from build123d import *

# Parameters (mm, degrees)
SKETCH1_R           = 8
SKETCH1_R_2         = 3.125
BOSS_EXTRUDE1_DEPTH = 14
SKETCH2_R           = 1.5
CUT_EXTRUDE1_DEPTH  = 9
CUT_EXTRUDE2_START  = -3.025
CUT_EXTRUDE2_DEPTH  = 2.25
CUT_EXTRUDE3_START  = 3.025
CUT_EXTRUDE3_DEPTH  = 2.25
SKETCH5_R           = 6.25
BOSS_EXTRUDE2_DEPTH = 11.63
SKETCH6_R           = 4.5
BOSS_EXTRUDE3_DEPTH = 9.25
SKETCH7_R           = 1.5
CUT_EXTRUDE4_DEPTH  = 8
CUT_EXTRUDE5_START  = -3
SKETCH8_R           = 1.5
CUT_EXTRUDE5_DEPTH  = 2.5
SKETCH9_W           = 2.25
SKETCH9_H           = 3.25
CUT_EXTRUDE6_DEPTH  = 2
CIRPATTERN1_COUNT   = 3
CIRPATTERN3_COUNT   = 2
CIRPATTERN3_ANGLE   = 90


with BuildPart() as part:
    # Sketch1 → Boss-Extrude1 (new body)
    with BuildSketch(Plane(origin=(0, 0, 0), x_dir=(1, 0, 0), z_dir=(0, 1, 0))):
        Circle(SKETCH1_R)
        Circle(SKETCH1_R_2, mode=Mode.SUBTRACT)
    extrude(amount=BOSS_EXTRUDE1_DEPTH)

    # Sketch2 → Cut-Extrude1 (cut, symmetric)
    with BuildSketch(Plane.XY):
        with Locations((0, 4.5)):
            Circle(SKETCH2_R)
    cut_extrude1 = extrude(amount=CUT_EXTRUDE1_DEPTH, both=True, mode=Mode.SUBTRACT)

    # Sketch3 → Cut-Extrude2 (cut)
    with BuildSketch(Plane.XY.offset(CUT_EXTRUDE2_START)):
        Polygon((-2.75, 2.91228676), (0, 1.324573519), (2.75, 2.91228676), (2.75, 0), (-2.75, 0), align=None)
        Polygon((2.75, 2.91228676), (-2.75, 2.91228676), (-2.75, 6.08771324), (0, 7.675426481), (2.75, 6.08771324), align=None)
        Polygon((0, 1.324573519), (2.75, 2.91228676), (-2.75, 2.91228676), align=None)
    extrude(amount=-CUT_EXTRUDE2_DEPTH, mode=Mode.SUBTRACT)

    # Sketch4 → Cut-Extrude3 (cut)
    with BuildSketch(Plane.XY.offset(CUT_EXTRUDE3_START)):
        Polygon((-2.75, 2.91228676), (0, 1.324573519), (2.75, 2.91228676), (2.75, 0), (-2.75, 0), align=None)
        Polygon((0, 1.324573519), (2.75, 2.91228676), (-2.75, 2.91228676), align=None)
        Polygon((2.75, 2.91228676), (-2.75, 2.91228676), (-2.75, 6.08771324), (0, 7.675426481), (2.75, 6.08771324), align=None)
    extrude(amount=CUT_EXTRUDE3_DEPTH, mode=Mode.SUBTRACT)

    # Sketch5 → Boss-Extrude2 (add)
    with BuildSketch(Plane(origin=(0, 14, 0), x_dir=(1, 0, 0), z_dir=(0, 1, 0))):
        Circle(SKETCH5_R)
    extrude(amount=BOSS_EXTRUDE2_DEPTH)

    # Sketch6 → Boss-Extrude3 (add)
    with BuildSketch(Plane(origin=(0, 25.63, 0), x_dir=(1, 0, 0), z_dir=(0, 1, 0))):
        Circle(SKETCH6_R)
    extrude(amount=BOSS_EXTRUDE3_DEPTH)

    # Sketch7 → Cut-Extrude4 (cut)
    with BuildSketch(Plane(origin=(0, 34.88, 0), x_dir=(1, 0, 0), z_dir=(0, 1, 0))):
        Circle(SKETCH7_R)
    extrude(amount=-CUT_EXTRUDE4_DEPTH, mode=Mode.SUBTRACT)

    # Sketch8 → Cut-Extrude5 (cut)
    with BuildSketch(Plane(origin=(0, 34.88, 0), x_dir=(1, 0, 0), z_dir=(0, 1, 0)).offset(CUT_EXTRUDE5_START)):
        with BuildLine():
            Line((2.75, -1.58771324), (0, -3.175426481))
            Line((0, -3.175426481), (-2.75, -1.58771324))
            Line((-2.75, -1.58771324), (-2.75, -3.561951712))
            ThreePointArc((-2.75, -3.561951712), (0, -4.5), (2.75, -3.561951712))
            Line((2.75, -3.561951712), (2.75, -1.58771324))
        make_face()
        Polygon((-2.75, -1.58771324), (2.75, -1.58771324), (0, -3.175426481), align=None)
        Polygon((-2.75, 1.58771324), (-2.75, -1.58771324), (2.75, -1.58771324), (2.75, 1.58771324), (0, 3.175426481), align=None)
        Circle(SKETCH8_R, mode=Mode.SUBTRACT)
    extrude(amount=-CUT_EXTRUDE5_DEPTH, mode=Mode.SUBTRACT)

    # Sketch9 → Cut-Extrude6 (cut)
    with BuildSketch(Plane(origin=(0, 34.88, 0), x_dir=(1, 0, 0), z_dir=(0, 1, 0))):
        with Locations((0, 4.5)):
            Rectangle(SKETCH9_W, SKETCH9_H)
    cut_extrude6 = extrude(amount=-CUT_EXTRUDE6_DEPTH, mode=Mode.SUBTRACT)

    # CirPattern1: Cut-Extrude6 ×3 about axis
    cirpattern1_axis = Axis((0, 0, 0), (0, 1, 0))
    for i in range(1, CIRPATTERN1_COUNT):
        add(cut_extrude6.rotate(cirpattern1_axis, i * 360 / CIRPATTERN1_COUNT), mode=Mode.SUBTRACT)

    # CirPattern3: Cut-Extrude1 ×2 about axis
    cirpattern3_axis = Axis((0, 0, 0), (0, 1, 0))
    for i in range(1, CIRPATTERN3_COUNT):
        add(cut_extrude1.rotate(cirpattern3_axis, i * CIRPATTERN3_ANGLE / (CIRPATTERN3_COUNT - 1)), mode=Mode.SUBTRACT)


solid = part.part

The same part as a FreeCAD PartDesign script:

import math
import FreeCAD as App
import Part
import Sketcher

V = App.Vector
Q = App.Units.Quantity


def add_polygon(sketch, points):
    """Adds a closed chain of lines whose ends are joined by coincident constraints."""
    first, n = sketch.GeometryCount, len(points)
    for a, b in zip(points, points[1:] + points[:1]):
        sketch.addGeometry(Part.LineSegment(App.Vector(*a, 0), App.Vector(*b, 0)), False)
    for i in range(n):
        sketch.addConstraint(Sketcher.Constraint("Coincident", first + i, 2, first + (i + 1) % n, 1))

doc = App.newDocument("Part")
params = doc.addObject("Spreadsheet::Sheet", "Params")
for row, (alias, value) in enumerate([
    ("sketch1_diameter", "16 mm"),
    ("sketch1_diameter2", "6.25 mm"),
    ("pad1_length", "14 mm"),
    ("sketch2_diameter", "3 mm"),
    ("pocket1_length", "18 mm"),
    ("sketch3_width", "5.5 mm"),
    ("pocket2_length", "2.25 mm"),
    ("sketch4_width", "5.5 mm"),
    ("pocket3_length", "2.25 mm"),
    ("sketch5_diameter", "12.5 mm"),
    ("pad2_length", "11.63 mm"),
    ("sketch6_diameter", "9 mm"),
    ("pad3_length", "9.25 mm"),
    ("sketch7_diameter", "3 mm"),
    ("pocket4_length", "8 mm"),
    ("sketch8_diameter", "3 mm"),
    ("sketch8_radius", "4.5 mm"),
    ("pocket5_length", "2.5 mm"),
    ("sketch9_width", "2.25 mm"),
    ("sketch9_height", "3.25 mm"),
    ("pocket6_length", "2 mm"),
], start=1):
    params.set(f"A{row}", alias)
    params.set(f"B{row}", "=" + value)
    params.setAlias(f"B{row}", alias)

body = doc.addObject("PartDesign::Body", "Body")

# Sketch on XZ plane
sketch1 = doc.addObject("Sketcher::SketchObject", "Sketch")
body.addObject(sketch1)
sketch1.AttachmentSupport = (doc.XZ_Plane, [""])
sketch1.MapMode = "FlatFace"
sketch1.addGeometry(Part.Circle(V(0, 0, 0), V(0, 0, 1), 8), False)
sketch1.addGeometry(Part.Circle(V(0, 0, 0), V(0, 0, 1), 3.1), False)
sketch1.addConstraint(Sketcher.Constraint("Coincident", 0, 3, -1, 1))
sketch1.addConstraint(Sketcher.Constraint("Coincident", 1, 3, -1, 1))
sketch1.addConstraint(Sketcher.Constraint("Diameter", 0, Q("16 mm")))
sketch1.addConstraint(Sketcher.Constraint("Diameter", 1, Q("6.25 mm")))
sketch1.setExpression("Constraints[2]", "Params.sketch1_diameter")
sketch1.setExpression("Constraints[3]", "Params.sketch1_diameter2")
pad1 = doc.addObject("PartDesign::Pad", "Pad")
body.addObject(pad1)
pad1.Profile = sketch1
pad1.setExpression("Length", "Params.pad1_length")
pad1.Reversed = True

# Sketch on XY plane
sketch2 = doc.addObject("Sketcher::SketchObject", "Sketch001")
body.addObject(sketch2)
sketch2.AttachmentSupport = (doc.XY_Plane, [""])
sketch2.MapMode = "FlatFace"
sketch2.addGeometry(Part.Circle(V(0, 4.5, 0), V(0, 0, 1), 1.5), False)
sketch2.addConstraint(Sketcher.Constraint("PointOnObject", 0, 3, -2))
sketch2.addConstraint(Sketcher.Constraint("Diameter", 0, Q("3 mm")))
sketch2.addConstraint(Sketcher.Constraint("DistanceY", -1, 1, 0, 3, Q("4.5 mm")))
sketch2.setExpression("Constraints[1]", "Params.sketch2_diameter")
pocket1 = doc.addObject("PartDesign::Pocket", "Pocket")
body.addObject(pocket1)
pocket1.Profile = sketch2
pocket1.setExpression("Length", "Params.pocket1_length")
pocket1.Midplane = True

# Sketch on XY plane
sketch3 = doc.addObject("Sketcher::SketchObject", "Sketch002")
body.addObject(sketch3)
sketch3.AttachmentSupport = (doc.XY_Plane, [""])
sketch3.MapMode = "FlatFace"
sketch3.AttachmentOffset = App.Placement(V(0, 0, -3.025), App.Rotation())
add_polygon(sketch3, [(2.8, 0), (2.8, 6.1), (0, 7.7), (-2.8, 6.1), (-2.8, 0)])  # lines 0-4
sketch3.addConstraint(Sketcher.Constraint("Vertical", 0))
sketch3.addConstraint(Sketcher.Constraint("Vertical", 3))
sketch3.addConstraint(Sketcher.Constraint("Horizontal", 4))
sketch3.addConstraint(Sketcher.Constraint("Symmetric", 3, 2, 4, 2, -1, 1))
sketch3.addConstraint(Sketcher.Constraint("PointOnObject", 1, 2, -2))
sketch3.addConstraint(Sketcher.Constraint("Horizontal", 0, 2, 2, 2))
sketch3.addConstraint(Sketcher.Constraint("Angle", 1, Q("150 deg")))
sketch3.addConstraint(Sketcher.Constraint("DistanceX", 4, 1, 4, 2, Q("5.5 mm")))
sketch3.addConstraint(Sketcher.Constraint("DistanceY", 0, 1, 0, 2, Q("6.087713 mm")))
sketch3.setExpression("Constraints[12]", "Params.sketch3_width")
pocket2 = doc.addObject("PartDesign::Pocket", "Pocket001")
body.addObject(pocket2)
pocket2.Profile = sketch3
pocket2.setExpression("Length", "Params.pocket2_length")

# Sketch on XY plane
sketch4 = doc.addObject("Sketcher::SketchObject", "Sketch003")
body.addObject(sketch4)
sketch4.AttachmentSupport = (doc.XY_Plane, [""])
sketch4.MapMode = "FlatFace"
sketch4.AttachmentOffset = App.Placement(V(0, 0, 3.025), App.Rotation())
add_polygon(sketch4, [(2.8, 0), (2.8, 6.1), (0, 7.7), (-2.8, 6.1), (-2.8, 0)])  # lines 0-4
sketch4.addConstraint(Sketcher.Constraint("Vertical", 0))
sketch4.addConstraint(Sketcher.Constraint("Vertical", 3))
sketch4.addConstraint(Sketcher.Constraint("Horizontal", 4))
sketch4.addConstraint(Sketcher.Constraint("Symmetric", 3, 2, 4, 2, -1, 1))
sketch4.addConstraint(Sketcher.Constraint("PointOnObject", 1, 2, -2))
sketch4.addConstraint(Sketcher.Constraint("Horizontal", 0, 2, 2, 2))
sketch4.addConstraint(Sketcher.Constraint("Angle", 1, Q("150 deg")))
sketch4.addConstraint(Sketcher.Constraint("DistanceX", 4, 1, 4, 2, Q("5.5 mm")))
sketch4.addConstraint(Sketcher.Constraint("DistanceY", 0, 1, 0, 2, Q("6.087713 mm")))
sketch4.setExpression("Constraints[12]", "Params.sketch4_width")
pocket3 = doc.addObject("PartDesign::Pocket", "Pocket002")
body.addObject(pocket3)
pocket3.Profile = sketch4
pocket3.setExpression("Length", "Params.pocket3_length")
pocket3.Reversed = True

# Sketch on XZ plane
sketch5 = doc.addObject("Sketcher::SketchObject", "Sketch004")
body.addObject(sketch5)
sketch5.AttachmentSupport = (doc.XZ_Plane, [""])
sketch5.MapMode = "FlatFace"
sketch5.AttachmentOffset = App.Placement(V(0, 0, -14), App.Rotation())
sketch5.addGeometry(Part.Circle(V(0, 0, 0), V(0, 0, 1), 6), False)
sketch5.addConstraint(Sketcher.Constraint("Coincident", 0, 3, -1, 1))
sketch5.addConstraint(Sketcher.Constraint("Diameter", 0, Q("12.5 mm")))
sketch5.setExpression("Constraints[1]", "Params.sketch5_diameter")
pad2 = doc.addObject("PartDesign::Pad", "Pad001")
body.addObject(pad2)
pad2.Profile = sketch5
pad2.setExpression("Length", "Params.pad2_length")
pad2.Reversed = True

# Sketch on XZ plane
sketch6 = doc.addObject("Sketcher::SketchObject", "Sketch005")
body.addObject(sketch6)
sketch6.AttachmentSupport = (doc.XZ_Plane, [""])
sketch6.MapMode = "FlatFace"
sketch6.AttachmentOffset = App.Placement(V(0, 0, -25.63), App.Rotation())
sketch6.addGeometry(Part.Circle(V(0, 0, 0), V(0, 0, 1), 4.5), False)
sketch6.addConstraint(Sketcher.Constraint("Coincident", 0, 3, -1, 1))
sketch6.addConstraint(Sketcher.Constraint("Diameter", 0, Q("9 mm")))
sketch6.setExpression("Constraints[1]", "Params.sketch6_diameter")
pad3 = doc.addObject("PartDesign::Pad", "Pad002")
body.addObject(pad3)
pad3.Profile = sketch6
pad3.setExpression("Length", "Params.pad3_length")
pad3.Reversed = True

# Sketch on XZ plane
sketch7 = doc.addObject("Sketcher::SketchObject", "Sketch006")
body.addObject(sketch7)
sketch7.AttachmentSupport = (doc.XZ_Plane, [""])
sketch7.MapMode = "FlatFace"
sketch7.AttachmentOffset = App.Placement(V(0, 0, -34.88), App.Rotation())
sketch7.addGeometry(Part.Circle(V(0, 0, 0), V(0, 0, 1), 1.5), False)
sketch7.addConstraint(Sketcher.Constraint("Coincident", 0, 3, -1, 1))
sketch7.addConstraint(Sketcher.Constraint("Diameter", 0, Q("3 mm")))
sketch7.setExpression("Constraints[1]", "Params.sketch7_diameter")
pocket4 = doc.addObject("PartDesign::Pocket", "Pocket003")
body.addObject(pocket4)
pocket4.Profile = sketch7
pocket4.setExpression("Length", "Params.pocket4_length")
pocket4.Reversed = True

# Sketch on XZ plane
sketch8 = doc.addObject("Sketcher::SketchObject", "Sketch007")
body.addObject(sketch8)
sketch8.AttachmentSupport = (doc.XZ_Plane, [""])
sketch8.MapMode = "FlatFace"
sketch8.AttachmentOffset = App.Placement(V(0, 0, -31.88), App.Rotation())
sketch8.addGeometry(Part.ArcOfCircle(Part.Circle(V(0, 0, 0), V(0, 0, 1), 4.5), math.radians(52), math.radians(128)), False)
sketch8.addGeometry(Part.LineSegment(V(2.8, 3.6, 0), V(2.8, -1.6, 0)), False)
sketch8.addGeometry(Part.LineSegment(V(2.8, -1.6, 0), V(0, -3.2, 0)), False)
sketch8.addGeometry(Part.LineSegment(V(0, -3.2, 0), V(-2.8, -1.6, 0)), False)
sketch8.addGeometry(Part.LineSegment(V(-2.8, -1.6, 0), V(-2.8, 3.6, 0)), False)
sketch8.addGeometry(Part.Circle(V(0, 0, 0), V(0, 0, 1), 1.5), False)
sketch8.addConstraint(Sketcher.Constraint("Coincident", 0, 1, 1, 1))
sketch8.addConstraint(Sketcher.Constraint("Coincident", 1, 2, 2, 1))
sketch8.addConstraint(Sketcher.Constraint("Coincident", 2, 2, 3, 1))
sketch8.addConstraint(Sketcher.Constraint("Coincident", 3, 2, 4, 1))
sketch8.addConstraint(Sketcher.Constraint("Coincident", 4, 2, 0, 2))
sketch8.addConstraint(Sketcher.Constraint("Vertical", 1))
sketch8.addConstraint(Sketcher.Constraint("Vertical", 4))
sketch8.addConstraint(Sketcher.Constraint("Coincident", 0, 3, -1, 1))
sketch8.addConstraint(Sketcher.Constraint("Coincident", 5, 3, -1, 1))
sketch8.addConstraint(Sketcher.Constraint("Symmetric", 1, 2, 3, 2, -2))
sketch8.addConstraint(Sketcher.Constraint("PointOnObject", 2, 2, -2))
sketch8.addConstraint(Sketcher.Constraint("Diameter", 5, Q("3 mm")))
sketch8.addConstraint(Sketcher.Constraint("Radius", 0, Q("4.5 mm")))
sketch8.addConstraint(Sketcher.Constraint("Angle", 2, Q("-150 deg")))
sketch8.addConstraint(Sketcher.Constraint("DistanceX", 3, 2, 1, 2, Q("5.5 mm")))
sketch8.addConstraint(Sketcher.Constraint("DistanceY", 1, 2, 1, 1, Q("5.149665 mm")))
sketch8.setExpression("Constraints[11]", "Params.sketch8_diameter")
sketch8.setExpression("Constraints[12]", "Params.sketch8_radius")
pocket5 = doc.addObject("PartDesign::Pocket", "Pocket004")
body.addObject(pocket5)
pocket5.Profile = sketch8
pocket5.setExpression("Length", "Params.pocket5_length")
pocket5.Reversed = True

# Sketch on XZ plane
sketch9 = doc.addObject("Sketcher::SketchObject", "Sketch008")
body.addObject(sketch9)
sketch9.AttachmentSupport = (doc.XZ_Plane, [""])
sketch9.MapMode = "FlatFace"
sketch9.AttachmentOffset = App.Placement(V(0, 0, -34.88), App.Rotation())
add_polygon(sketch9, [(-1.1, -6.1), (-1.1, -2.9), (1.1, -2.9), (1.1, -6.1)])  # lines 0-3
sketch9.addConstraint(Sketcher.Constraint("Vertical", 0))
sketch9.addConstraint(Sketcher.Constraint("Horizontal", 1))
sketch9.addConstraint(Sketcher.Constraint("Vertical", 2))
sketch9.addConstraint(Sketcher.Constraint("Horizontal", 3))
sketch9.addConstraint(Sketcher.Constraint("DistanceX", 1, 1, 1, 2, Q("2.25 mm")))
sketch9.addConstraint(Sketcher.Constraint("DistanceY", 0, 1, 0, 2, Q("3.25 mm")))
sketch9.addConstraint(Sketcher.Constraint("DistanceX", 0, 2, -1, 1, Q("1.125 mm")))
sketch9.addConstraint(Sketcher.Constraint("DistanceY", 0, 2, -1, 1, Q("2.875 mm")))
sketch9.setExpression("Constraints[8]", "Params.sketch9_width")
sketch9.setExpression("Constraints[9]", "Params.sketch9_height")
pocket6 = doc.addObject("PartDesign::Pocket", "Pocket005")
body.addObject(pocket6)
pocket6.Profile = sketch9
pocket6.setExpression("Length", "Params.pocket6_length")
pocket6.Reversed = True
doc.recompute()

polarpattern = doc.addObject("PartDesign::PolarPattern", "PolarPattern")
body.addObject(polarpattern)
polarpattern.Originals = [pocket6]
polarpattern.Axis = (doc.Y_Axis, [""])
polarpattern.Angle = 360
polarpattern.Occurrences = 3
body.Tip = polarpattern
doc.recompute()

polarpattern2 = doc.addObject("PartDesign::PolarPattern", "PolarPattern001")
body.addObject(polarpattern2)
polarpattern2.Originals = [pocket1]
polarpattern2.Axis = (doc.Y_Axis, [""])
polarpattern2.Angle = 90
polarpattern2.Occurrences = 2
body.Tip = polarpattern2

doc.recompute()
